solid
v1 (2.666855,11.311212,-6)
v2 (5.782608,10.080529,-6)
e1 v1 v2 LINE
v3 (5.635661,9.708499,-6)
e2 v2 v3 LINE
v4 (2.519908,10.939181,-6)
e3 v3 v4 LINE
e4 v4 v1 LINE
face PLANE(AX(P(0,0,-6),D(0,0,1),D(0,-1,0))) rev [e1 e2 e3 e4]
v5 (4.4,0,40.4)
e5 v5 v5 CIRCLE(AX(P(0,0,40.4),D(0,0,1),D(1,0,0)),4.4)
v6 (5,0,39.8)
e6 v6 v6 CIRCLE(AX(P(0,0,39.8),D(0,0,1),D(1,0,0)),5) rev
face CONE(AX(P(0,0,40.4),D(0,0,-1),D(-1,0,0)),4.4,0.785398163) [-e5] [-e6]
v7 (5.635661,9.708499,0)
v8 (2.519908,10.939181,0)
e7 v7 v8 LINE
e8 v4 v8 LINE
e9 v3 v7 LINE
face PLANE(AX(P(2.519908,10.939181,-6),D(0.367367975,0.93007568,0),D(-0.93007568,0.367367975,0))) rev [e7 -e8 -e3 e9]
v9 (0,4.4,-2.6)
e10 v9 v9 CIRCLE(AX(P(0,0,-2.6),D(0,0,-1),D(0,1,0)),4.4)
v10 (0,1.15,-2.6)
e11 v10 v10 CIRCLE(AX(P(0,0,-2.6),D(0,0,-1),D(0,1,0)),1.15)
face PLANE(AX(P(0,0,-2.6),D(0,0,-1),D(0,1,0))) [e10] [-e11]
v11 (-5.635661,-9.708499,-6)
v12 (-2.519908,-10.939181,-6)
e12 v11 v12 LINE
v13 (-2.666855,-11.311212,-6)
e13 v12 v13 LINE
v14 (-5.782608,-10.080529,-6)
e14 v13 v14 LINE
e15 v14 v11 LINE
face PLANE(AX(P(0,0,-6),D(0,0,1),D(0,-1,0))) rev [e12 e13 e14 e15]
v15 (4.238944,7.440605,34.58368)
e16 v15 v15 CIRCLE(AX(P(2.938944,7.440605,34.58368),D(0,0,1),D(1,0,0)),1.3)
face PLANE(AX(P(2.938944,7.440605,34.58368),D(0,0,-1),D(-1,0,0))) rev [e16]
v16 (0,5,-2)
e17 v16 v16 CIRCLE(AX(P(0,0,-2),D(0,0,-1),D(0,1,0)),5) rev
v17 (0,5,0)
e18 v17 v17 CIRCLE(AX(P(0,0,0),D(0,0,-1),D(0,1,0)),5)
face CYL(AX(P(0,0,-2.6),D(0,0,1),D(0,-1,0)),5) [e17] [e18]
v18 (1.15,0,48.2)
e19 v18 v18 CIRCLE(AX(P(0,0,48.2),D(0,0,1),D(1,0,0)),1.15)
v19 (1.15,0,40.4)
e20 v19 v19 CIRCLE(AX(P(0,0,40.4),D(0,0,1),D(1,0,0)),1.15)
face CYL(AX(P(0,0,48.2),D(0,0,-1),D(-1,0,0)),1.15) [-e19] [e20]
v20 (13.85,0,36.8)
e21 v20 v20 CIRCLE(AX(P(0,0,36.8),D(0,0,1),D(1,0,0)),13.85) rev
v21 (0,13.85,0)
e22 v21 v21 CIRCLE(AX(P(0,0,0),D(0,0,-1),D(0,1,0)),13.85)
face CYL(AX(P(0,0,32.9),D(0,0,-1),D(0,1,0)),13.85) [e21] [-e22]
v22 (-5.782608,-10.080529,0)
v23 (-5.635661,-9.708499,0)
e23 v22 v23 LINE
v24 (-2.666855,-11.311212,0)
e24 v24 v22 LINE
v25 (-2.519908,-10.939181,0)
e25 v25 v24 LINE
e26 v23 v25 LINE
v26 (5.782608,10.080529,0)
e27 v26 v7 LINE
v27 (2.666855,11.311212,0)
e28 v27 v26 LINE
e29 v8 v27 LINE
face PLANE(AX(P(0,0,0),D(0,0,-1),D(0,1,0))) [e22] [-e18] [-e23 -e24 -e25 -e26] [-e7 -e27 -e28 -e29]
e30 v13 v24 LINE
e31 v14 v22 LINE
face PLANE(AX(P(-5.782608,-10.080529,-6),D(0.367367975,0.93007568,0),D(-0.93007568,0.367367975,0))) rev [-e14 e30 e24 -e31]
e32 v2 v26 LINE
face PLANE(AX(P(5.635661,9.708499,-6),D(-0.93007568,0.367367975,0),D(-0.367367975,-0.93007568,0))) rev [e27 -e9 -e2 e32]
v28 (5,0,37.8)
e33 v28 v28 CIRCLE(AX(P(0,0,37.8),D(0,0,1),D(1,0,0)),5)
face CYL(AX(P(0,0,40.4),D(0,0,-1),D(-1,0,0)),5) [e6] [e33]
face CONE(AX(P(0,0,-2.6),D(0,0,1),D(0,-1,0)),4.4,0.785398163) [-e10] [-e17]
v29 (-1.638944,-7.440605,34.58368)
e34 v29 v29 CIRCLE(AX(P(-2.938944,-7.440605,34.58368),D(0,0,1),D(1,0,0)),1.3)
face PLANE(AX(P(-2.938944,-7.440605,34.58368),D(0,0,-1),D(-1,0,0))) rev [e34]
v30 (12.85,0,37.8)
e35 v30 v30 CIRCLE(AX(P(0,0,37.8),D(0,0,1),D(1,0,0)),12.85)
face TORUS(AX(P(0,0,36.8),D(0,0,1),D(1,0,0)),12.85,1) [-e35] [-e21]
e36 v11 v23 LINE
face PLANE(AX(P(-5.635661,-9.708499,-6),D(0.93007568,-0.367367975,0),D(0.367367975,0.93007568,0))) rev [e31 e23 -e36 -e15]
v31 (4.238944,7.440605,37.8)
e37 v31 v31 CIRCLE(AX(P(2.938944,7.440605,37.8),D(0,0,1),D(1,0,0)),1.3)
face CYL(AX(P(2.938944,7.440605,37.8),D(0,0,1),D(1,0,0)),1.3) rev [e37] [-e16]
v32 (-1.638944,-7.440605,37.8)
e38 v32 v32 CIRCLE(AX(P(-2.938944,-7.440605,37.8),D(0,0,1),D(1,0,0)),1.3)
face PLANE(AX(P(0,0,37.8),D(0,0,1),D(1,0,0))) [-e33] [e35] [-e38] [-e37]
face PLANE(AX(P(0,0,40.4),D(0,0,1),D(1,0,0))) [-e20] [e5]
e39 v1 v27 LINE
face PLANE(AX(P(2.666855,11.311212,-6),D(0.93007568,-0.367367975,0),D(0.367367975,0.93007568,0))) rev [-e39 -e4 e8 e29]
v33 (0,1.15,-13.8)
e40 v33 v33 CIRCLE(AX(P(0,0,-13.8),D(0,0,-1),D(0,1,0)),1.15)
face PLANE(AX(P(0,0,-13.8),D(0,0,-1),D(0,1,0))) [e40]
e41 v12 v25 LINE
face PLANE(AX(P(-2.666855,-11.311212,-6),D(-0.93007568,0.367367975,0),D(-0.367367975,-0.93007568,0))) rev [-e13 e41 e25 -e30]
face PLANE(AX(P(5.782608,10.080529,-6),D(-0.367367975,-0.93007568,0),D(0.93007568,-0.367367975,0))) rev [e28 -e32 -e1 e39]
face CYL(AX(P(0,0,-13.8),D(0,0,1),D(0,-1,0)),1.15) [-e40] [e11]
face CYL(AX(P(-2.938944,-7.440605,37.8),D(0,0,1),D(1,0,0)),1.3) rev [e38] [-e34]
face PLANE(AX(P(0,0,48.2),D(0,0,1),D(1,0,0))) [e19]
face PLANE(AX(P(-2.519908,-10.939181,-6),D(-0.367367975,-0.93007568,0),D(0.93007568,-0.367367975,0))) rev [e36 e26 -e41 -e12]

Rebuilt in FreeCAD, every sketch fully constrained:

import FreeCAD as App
import Part
import Sketcher
from FreeCAD import Vector


def edges_at(feature, points):
    """Names of the edges that pass closest to the given points."""
    edges = feature.Shape.Edges
    near = lambda p: min(range(len(edges)), key=lambda i: edges[i].distToShape(Part.Vertex(*p))[0])
    return sorted({f"Edge{near(p) + 1}" for p in points})


def add_polygon(sketch, points):
    """Adds a closed chain of lines whose ends are joined by coincident constraints."""
    first, n = sketch.GeometryCount, len(points)
    for a, b in zip(points, points[1:] + points[:1]):
        sketch.addGeometry(Part.LineSegment(App.Vector(*a, 0), App.Vector(*b, 0)), False)
    for i in range(n):
        sketch.addConstraint(Sketcher.Constraint("Coincident", first + i, 2, first + (i + 1) % n, 1))

doc = App.newDocument("Part")
params = doc.addObject("Spreadsheet::Sheet", "Params")
for row, (alias, value) in enumerate([
    ("sketch1_height", "20 mm"),
    ("sketch1_width", "13.85 mm"),
    ("revolution_angle", "360 deg"),
    ("sketch2_diameter", "27.7 mm"),
    ("pad1_length", "12.9 mm"),
    ("sketch3_length", "0.4 mm"),
    ("sketch3_length2", "3.35 mm"),
    ("pad2_length", "6 mm"),
    ("sketch4_length", "0.4 mm"),
    ("sketch4_length2", "3.35 mm"),
    ("pad3_length", "6 mm"),
    ("sketch5_diameter", "27.7 mm"),
    ("pad4_length", "4.9 mm"),
    ("sketch6_diameter", "10 mm"),
    ("pad5_length", "2.6 mm"),
    ("sketch7_diameter", "2.3 mm"),
    ("pad6_length", "7.8 mm"),
    ("sketch8_diameter", "10 mm"),
    ("pad7_length", "2.6 mm"),
    ("sketch9_diameter", "2.3 mm"),
    ("pad8_length", "11.2 mm"),
    ("sketch10_diameter", "2.6 mm"),
    ("hole_diameter", "2.6 mm"),
    ("hole_depth", "3.21632 mm"),
    ("chamfer_size", "0.6 mm"),
    ("fillet_radius", "1 mm"),
], start=1):
    params.set(f"A{row}", alias)
    params.set(f"B{row}", "=" + value)
    params.setAlias(f"B{row}", alias)

body = doc.addObject("PartDesign::Body", "Body")

# Sketch on XZ plane
sketch1 = body.newObject("Sketcher::SketchObject", "Sketch")
sketch1.AttachmentSupport = (doc.getObject("XZ_Plane"), [""])
sketch1.MapMode = "FlatFace"
add_polygon(sketch1, [(0, 33), (0, 13), (14, 13), (14, 33)])  # lines 0-3
sketch1.addConstraint(Sketcher.Constraint("Vertical", 0))
sketch1.addConstraint(Sketcher.Constraint("Horizontal", 1))
sketch1.addConstraint(Sketcher.Constraint("Vertical", 2))
sketch1.addConstraint(Sketcher.Constraint("Horizontal", 3))
sketch1.addConstraint(Sketcher.Constraint("PointOnObject", 0, 2, -2))
sketch1.addConstraint(Sketcher.Constraint("DistanceY", 0, 2, 0, 1, 20.0))
sketch1.addConstraint(Sketcher.Constraint("DistanceX", 1, 1, 1, 2, 13.85))
sketch1.addConstraint(Sketcher.Constraint("DistanceY", -1, 1, 0, 2, 12.9))
sketch1.setExpression("Constraints[9]", "Params.sketch1_height")
sketch1.setExpression("Constraints[10]", "Params.sketch1_width")
revolution = body.newObject("PartDesign::Revolution", "Revolution")
revolution.Profile = sketch1
revolution.ReferenceAxis = (sketch1, ["V_Axis"])
revolution.setExpression("Angle", "Params.revolution_angle")

# Sketch on XY plane
sketch2 = body.newObject("Sketcher::SketchObject", "Sketch001")
sketch2.AttachmentSupport = (doc.getObject("XY_Plane"), [""])
sketch2.MapMode = "FlatFace"
sketch2.AttachmentOffset = App.Placement(Vector(0, 0, 12.9), App.Rotation())
sketch2.addGeometry(Part.Circle(Vector(0, 0, 0), Vector(0, 0, 1), 14), False)
sketch2.addConstraint(Sketcher.Constraint("Coincident", 0, 3, -1, 1))
sketch2.addConstraint(Sketcher.Constraint("Diameter", 0, 27.7))
sketch2.setExpression("Constraints[1]", "Params.sketch2_diameter")
pad1 = body.newObject("PartDesign::Pad", "Pad")
pad1.Profile = sketch2
pad1.setExpression("Length", "Params.pad1_length")
pad1.Reversed = True

# Sketch on XY plane
sketch3 = body.newObject("Sketcher::SketchObject", "Sketch002")
sketch3.AttachmentSupport = (doc.getObject("XY_Plane"), [""])
sketch3.MapMode = "FlatFace"
add_polygon(sketch3, [(2.67, 11.31), (5.78, 10.08), (5.64, 9.71), (2.52, 10.94)])  # lines 0-3
sketch3.addConstraint(Sketcher.Constraint("Perpendicular", 0, 1))
sketch3.addConstraint(Sketcher.Constraint("Perpendicular", 1, 2))
sketch3.addConstraint(Sketcher.Constraint("Perpendicular", 2, 3))
sketch3.addConstraint(Sketcher.Constraint("Distance", 1, 0.4))
sketch3.addConstraint(Sketcher.Constraint("Distance", 0, 3.35))
sketch3.addConstraint(Sketcher.Constraint("DistanceY", -1, 1, 1, 2, 9.708499))
sketch3.addConstraint(Sketcher.Constraint("DistanceX", 2, 2, 0, 2, 3.262701))
sketch3.addConstraint(Sketcher.Constraint("DistanceX", -1, 1, 0, 2, 5.782608))
sketch3.setExpression("Constraints[7]", "Params.sketch3_length")
sketch3.setExpression("Constraints[8]", "Params.sketch3_length2")
pad2 = body.newObject("PartDesign::Pad", "Pad001")
pad2.Profile = sketch3
pad2.setExpression("Length", "Params.pad2_length")
pad2.Reversed = True

# Sketch on XY plane
sketch4 = body.newObject("Sketcher::SketchObject", "Sketch003")
sketch4.AttachmentSupport = (doc.getObject("XY_Plane"), [""])
sketch4.MapMode = "FlatFace"
add_polygon(sketch4, [(-5.64, -9.71), (-2.52, -10.94), (-2.67, -11.31), (-5.78, -10.08)])  # lines 0-3
sketch4.addConstraint(Sketcher.Constraint("Perpendicular", 0, 1))
sketch4.addConstraint(Sketcher.Constraint("Perpendicular", 1, 2))
sketch4.addConstraint(Sketcher.Constraint("Perpendicular", 2, 3))
sketch4.addConstraint(Sketcher.Constraint("Distance", 1, 0.4))
sketch4.addConstraint(Sketcher.Constraint("Distance", 0, 3.35))
sketch4.addConstraint(Sketcher.Constraint("DistanceY", 3, 2, -1, 1, 9.708499))
sketch4.addConstraint(Sketcher.Constraint("DistanceX", 2, 2, 0, 2, 3.262701))
sketch4.addConstraint(Sketcher.Constraint("DistanceX", 2, 2, -1, 1, 5.782608))
sketch4.setExpression("Constraints[7]", "Params.sketch4_length")
sketch4.setExpression("Constraints[8]", "Params.sketch4_length2")
pad3 = body.newObject("PartDesign::Pad", "Pad002")
pad3.Profile = sketch4
pad3.setExpression("Length", "Params.pad3_length")
pad3.Reversed = True

# Sketch on XY plane
sketch5 = body.newObject("Sketcher::SketchObject", "Sketch004")
sketch5.AttachmentSupport = (doc.getObject("XY_Plane"), [""])
sketch5.MapMode = "FlatFace"
sketch5.AttachmentOffset = App.Placement(Vector(0, 0, 37.8), App.Rotation())
sketch5.addGeometry(Part.Circle(Vector(0, 0, 0), Vector(0, 0, 1), 14), False)
sketch5.addConstraint(Sketcher.Constraint("Coincident", 0, 3, -1, 1))
sketch5.addConstraint(Sketcher.Constraint("Diameter", 0, 27.7))
sketch5.setExpression("Constraints[1]", "Params.sketch5_diameter")
pad4 = body.newObject("PartDesign::Pad", "Pad003")
pad4.Profile = sketch5
pad4.setExpression("Length", "Params.pad4_length")
pad4.Reversed = True

# Sketch on XY plane
sketch6 = body.newObject("Sketcher::SketchObject", "Sketch005")
sketch6.AttachmentSupport = (doc.getObject("XY_Plane"), [""])
sketch6.MapMode = "FlatFace"
sketch6.AttachmentOffset = App.Placement(Vector(0, 0, 37.8), App.Rotation())
sketch6.addGeometry(Part.Circle(Vector(0, 0, 0), Vector(0, 0, 1), 5), False)
sketch6.addConstraint(Sketcher.Constraint("Coincident", 0, 3, -1, 1))
sketch6.addConstraint(Sketcher.Constraint("Diameter", 0, 10.0))
sketch6.setExpression("Constraints[1]", "Params.sketch6_diameter")
pad5 = body.newObject("PartDesign::Pad", "Pad004")
pad5.Profile = sketch6
pad5.setExpression("Length", "Params.pad5_length")

# Sketch on XY plane
sketch7 = body.newObject("Sketcher::SketchObject", "Sketch006")
sketch7.AttachmentSupport = (doc.getObject("XY_Plane"), [""])
sketch7.MapMode = "FlatFace"
sketch7.AttachmentOffset = App.Placement(Vector(0, 0, 40.4), App.Rotation())
sketch7.addGeometry(Part.Circle(Vector(0, 0, 0), Vector(0, 0, 1), 1.1), False)
sketch7.addConstraint(Sketcher.Constraint("Coincident", 0, 3, -1, 1))
sketch7.addConstraint(Sketcher.Constraint("Diameter", 0, 2.3))
sketch7.setExpression("Constraints[1]", "Params.sketch7_diameter")
pad6 = body.newObject("PartDesign::Pad", "Pad005")
pad6.Profile = sketch7
pad6.setExpression("Length", "Params.pad6_length")

# Sketch on XY plane
sketch8 = body.newObject("Sketcher::SketchObject", "Sketch007")
sketch8.AttachmentSupport = (doc.getObject("XY_Plane"), [""])
sketch8.MapMode = "FlatFace"
sketch8.AttachmentOffset = App.Placement(Vector(0, 0, -2.6), App.Rotation())
sketch8.addGeometry(Part.Circle(Vector(0, 0, 0), Vector(0, 0, 1), 5), False)
sketch8.addConstraint(Sketcher.Constraint("Coincident", 0, 3, -1, 1))
sketch8.addConstraint(Sketcher.Constraint("Diameter", 0, 10.0))
sketch8.setExpression("Constraints[1]", "Params.sketch8_diameter")
pad7 = body.newObject("PartDesign::Pad", "Pad006")
pad7.Profile = sketch8
pad7.setExpression("Length", "Params.pad7_length")

# Sketch on XY plane
sketch9 = body.newObject("Sketcher::SketchObject", "Sketch008")
sketch9.AttachmentSupport = (doc.getObject("XY_Plane"), [""])
sketch9.MapMode = "FlatFace"
sketch9.AttachmentOffset = App.Placement(Vector(0, 0, -13.8), App.Rotation())
sketch9.addGeometry(Part.Circle(Vector(0, 0, 0), Vector(0, 0, 1), 1.1), False)
sketch9.addConstraint(Sketcher.Constraint("Coincident", 0, 3, -1, 1))
sketch9.addConstraint(Sketcher.Constraint("Diameter", 0, 2.3))
sketch9.setExpression("Constraints[1]", "Params.sketch9_diameter")
pad8 = body.newObject("PartDesign::Pad", "Pad007")
pad8.Profile = sketch9
pad8.setExpression("Length", "Params.pad8_length")

# Sketch on XY plane
sketch10 = body.newObject("Sketcher::SketchObject", "Sketch009")
sketch10.AttachmentSupport = (doc.getObject("XY_Plane"), [""])
sketch10.MapMode = "FlatFace"
sketch10.AttachmentOffset = App.Placement(Vector(0, 0, 37.8), App.Rotation())
sketch10.addGeometry(Part.Circle(Vector(-2.9, -7.4, 0), Vector(0, 0, 1), 1.3), False)
sketch10.addGeometry(Part.Circle(Vector(2.9, 7.4, 0), Vector(0, 0, 1), 1.3), False)
sketch10.addConstraint(Sketcher.Constraint("Equal", 0, 1))
sketch10.addConstraint(Sketcher.Constraint("Symmetric", 0, 3, 1, 3, -1, 1))
sketch10.addConstraint(Sketcher.Constraint("Diameter", 0, 2.6))
sketch10.addConstraint(Sketcher.Constraint("DistanceY", 0, 3, 1, 3, 14.881211))
sketch10.addConstraint(Sketcher.Constraint("DistanceX", 0, 3, -1, 1, 2.938944))
sketch10.setExpression("Constraints[2]", "Params.sketch10_diameter")
doc.recompute()
hole = body.newObject("PartDesign::Hole", "Hole")
hole.Profile = sketch10
hole.ThreadType = "None"
hole.setExpression("Diameter", "Params.hole_diameter")
hole.DepthType = "Dimension"
hole.setExpression("Depth", "Params.hole_depth")
hole.DrillPoint = "Flat"
doc.recompute()

chamfer = body.newObject("PartDesign::Chamfer", "Chamfer")
chamfer.Base = (hole, edges_at(hole, [(-5, 0, 40.4), (-5, 0, -2.6)]))
chamfer.setExpression("Size", "Params.chamfer_size")
doc.recompute()

fillet = body.newObject("PartDesign::Fillet", "Fillet")
fillet.Base = (chamfer, edges_at(chamfer, [(0, -13.85, 37.8)]))
fillet.setExpression("Radius", "Params.fillet_radius")

doc.recompute()
